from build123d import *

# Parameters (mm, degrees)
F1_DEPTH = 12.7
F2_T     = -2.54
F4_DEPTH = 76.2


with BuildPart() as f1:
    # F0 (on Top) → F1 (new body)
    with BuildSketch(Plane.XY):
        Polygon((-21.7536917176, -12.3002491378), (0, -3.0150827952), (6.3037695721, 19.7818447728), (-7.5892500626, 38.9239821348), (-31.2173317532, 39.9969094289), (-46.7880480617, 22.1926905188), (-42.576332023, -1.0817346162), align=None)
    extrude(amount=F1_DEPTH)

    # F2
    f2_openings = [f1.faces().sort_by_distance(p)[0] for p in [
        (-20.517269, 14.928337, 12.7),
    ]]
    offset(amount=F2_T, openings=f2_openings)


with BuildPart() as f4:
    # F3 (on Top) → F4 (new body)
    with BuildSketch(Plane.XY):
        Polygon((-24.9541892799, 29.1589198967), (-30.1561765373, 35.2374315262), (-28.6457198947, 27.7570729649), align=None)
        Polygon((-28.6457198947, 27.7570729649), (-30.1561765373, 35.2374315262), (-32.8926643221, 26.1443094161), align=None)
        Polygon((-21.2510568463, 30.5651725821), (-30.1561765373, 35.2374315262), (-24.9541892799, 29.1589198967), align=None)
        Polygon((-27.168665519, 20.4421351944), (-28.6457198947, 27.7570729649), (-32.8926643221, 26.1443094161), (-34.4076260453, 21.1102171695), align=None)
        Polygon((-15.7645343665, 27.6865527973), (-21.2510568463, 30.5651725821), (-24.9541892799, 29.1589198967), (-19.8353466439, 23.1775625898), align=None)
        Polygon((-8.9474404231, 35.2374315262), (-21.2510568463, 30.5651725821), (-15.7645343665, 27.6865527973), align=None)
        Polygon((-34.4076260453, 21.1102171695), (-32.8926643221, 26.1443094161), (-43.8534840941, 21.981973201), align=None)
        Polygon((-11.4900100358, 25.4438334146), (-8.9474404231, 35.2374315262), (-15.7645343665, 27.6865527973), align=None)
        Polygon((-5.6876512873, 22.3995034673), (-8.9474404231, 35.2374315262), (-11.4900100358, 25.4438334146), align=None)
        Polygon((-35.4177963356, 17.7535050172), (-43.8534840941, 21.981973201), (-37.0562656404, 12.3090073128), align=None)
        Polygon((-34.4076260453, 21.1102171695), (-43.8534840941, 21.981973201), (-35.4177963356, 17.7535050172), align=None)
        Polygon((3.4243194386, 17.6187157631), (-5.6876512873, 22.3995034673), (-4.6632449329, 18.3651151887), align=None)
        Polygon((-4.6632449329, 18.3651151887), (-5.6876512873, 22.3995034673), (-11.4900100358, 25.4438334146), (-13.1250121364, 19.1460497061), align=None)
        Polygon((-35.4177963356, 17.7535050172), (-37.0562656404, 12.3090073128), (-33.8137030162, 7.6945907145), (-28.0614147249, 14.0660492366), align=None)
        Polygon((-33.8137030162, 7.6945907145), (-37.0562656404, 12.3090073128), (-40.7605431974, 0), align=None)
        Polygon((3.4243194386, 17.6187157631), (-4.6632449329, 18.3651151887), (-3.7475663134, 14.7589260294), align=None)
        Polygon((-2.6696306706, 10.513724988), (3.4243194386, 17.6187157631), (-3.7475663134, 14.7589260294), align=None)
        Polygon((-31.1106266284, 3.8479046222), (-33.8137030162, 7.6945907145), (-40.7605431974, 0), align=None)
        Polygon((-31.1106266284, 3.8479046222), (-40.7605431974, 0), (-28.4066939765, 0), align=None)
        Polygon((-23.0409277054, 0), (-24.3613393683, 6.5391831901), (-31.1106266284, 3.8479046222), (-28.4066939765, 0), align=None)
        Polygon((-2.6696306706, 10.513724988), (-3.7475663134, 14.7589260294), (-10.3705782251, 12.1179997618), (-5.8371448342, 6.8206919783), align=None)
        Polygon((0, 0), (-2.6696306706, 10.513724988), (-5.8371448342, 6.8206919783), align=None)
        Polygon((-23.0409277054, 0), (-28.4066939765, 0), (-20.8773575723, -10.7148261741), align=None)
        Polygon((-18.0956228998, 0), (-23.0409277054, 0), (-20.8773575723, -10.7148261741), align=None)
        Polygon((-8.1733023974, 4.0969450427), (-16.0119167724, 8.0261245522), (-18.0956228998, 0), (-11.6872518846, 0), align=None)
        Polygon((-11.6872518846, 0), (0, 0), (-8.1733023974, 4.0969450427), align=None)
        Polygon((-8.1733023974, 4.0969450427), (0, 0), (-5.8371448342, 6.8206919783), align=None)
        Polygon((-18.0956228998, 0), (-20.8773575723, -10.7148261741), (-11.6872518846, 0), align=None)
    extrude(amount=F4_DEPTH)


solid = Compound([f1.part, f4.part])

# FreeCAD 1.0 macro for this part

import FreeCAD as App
import Part
import Sketcher

V = App.Vector
Q = App.Units.Quantity


def faces_at(feature, points):
    """Names of the faces that lie closest to the given points."""
    faces = feature.Shape.Faces
    near = lambda p: min(range(len(faces)), key=lambda i: faces[i].distToShape(Part.Vertex(*p))[0])
    return sorted({f"Face{near(p) + 1}" for p in points})


def add_polygon(sketch, points):
    """Adds a closed chain of lines whose ends are joined by coincident constraints."""
    first, n = sketch.GeometryCount, len(points)
    for a, b in zip(points, points[1:] + points[:1]):
        sketch.addGeometry(Part.LineSegment(App.Vector(*a, 0), App.Vector(*b, 0)), False)
    for i in range(n):
        sketch.addConstraint(Sketcher.Constraint("Coincident", first + i, 2, first + (i + 1) % n, 1))

doc = App.newDocument("Part")
body = doc.addObject("PartDesign::Body", "Body")

# Sketch on XY plane
sketch1 = body.newObject("Sketcher::SketchObject", "Sketch")
sketch1.AttachmentSupport = (doc.getObject("XY_Plane"), [""])
sketch1.MapMode = "FlatFace"
add_polygon(sketch1, [(-22, -12), (0, -3), (6, 20), (-8, 39), (-31, 40), (-47, 22), (-43, -1)])  # lines 0-6
sketch1.addConstraint(Sketcher.Constraint("PointOnObject", 0, 2, -2))
sketch1.addConstraint(Sketcher.Constraint("Equal", 0, 1))
sketch1.addConstraint(Sketcher.Constraint("Equal", 1, 2))
sketch1.addConstraint(Sketcher.Constraint("Equal", 2, 3))
sketch1.addConstraint(Sketcher.Constraint("Equal", 3, 4))
sketch1.addConstraint(Sketcher.Constraint("Equal", 4, 5))
sketch1.addConstraint(Sketcher.Constraint("Equal", 5, 6))
sketch1.addConstraint(Sketcher.Constraint("DistanceX", 3, 2, 1, 2, Q("37.521101 mm")))
sketch1.addConstraint(Sketcher.Constraint("DistanceX", 5, 2, 3, 2, Q("11.359 mm")))
sketch1.addConstraint(Sketcher.Constraint("Distance", 0, Q("23.652429 mm")))
sketch1.addConstraint(Sketcher.Constraint("DistanceX", -1, 1, 1, 2, Q("6.30377 mm")))
sketch1.addConstraint(Sketcher.Constraint("DistanceX", 2, 2, -1, 1, Q("7.58925 mm")))
sketch1.addConstraint(Sketcher.Constraint("DistanceY", -1, 1, 3, 2, Q("39.996909 mm")))
sketch1.addConstraint(Sketcher.Constraint("DistanceX", 4, 2, -1, 1, Q("46.788048 mm")))
pad1 = body.newObject("PartDesign::Pad", "Pad")
pad1.Profile = sketch1
pad1.Length = Q("0.5 in")
doc.recompute()

thickness = body.newObject("PartDesign::Thickness", "Thickness")
thickness.Base = (pad1, faces_at(pad1, [(-20.242, 13.848, 12.7)]))
thickness.Value = Q("0.1 in")
thickness.Reversed = True
thickness.Join = "Arc"
body2 = doc.addObject("PartDesign::Body", "Body001")

# Sketch on XY plane
sketch2 = body2.newObject("Sketcher::SketchObject", "Sketch001")
sketch2.AttachmentSupport = (doc.getObject("XY_Plane001"), [""])
sketch2.MapMode = "FlatFace"
add_polygon(sketch2, [(-28.406694, 0), (-20.877358, -10.714826), (-11.687252, 0), (0, 0), (-2.669631, 10.513725), (3.424319, 17.618716), (-5.687651, 22.399503), (-8.94744, 35.237432), (-21.251057, 30.565173), (-30.156177, 35.237432), (-32.892664, 26.144309), (-43.853484, 21.981973), (-37.056266, 12.309007), (-40.760543, 0)])  # lines 0-13
add_polygon(sketch2, [(-16.011917, 8.026125), (-18.095623, 0), (-23.040928, 0), (-24.361339, 6.539183), (-31.110627, 3.847905), (-33.813703, 7.694591), (-28.061415, 14.066049), (-35.417796, 17.753505), (-34.407626, 21.110217), (-27.168666, 20.442135), (-28.64572, 27.757073), (-24.954189, 29.15892), (-19.835347, 23.177563), (-15.764534, 27.686553), (-11.49001, 25.443833), (-13.125012, 19.14605), (-4.663245, 18.365115), (-3.747566, 14.758926), (-10.370578, 12.118), (-5.837145, 6.820692), (-8.173302, 4.096945)])  # lines 14-34
sketch2.addConstraint(Sketcher.Constraint("Horizontal", 2))
sketch2.addConstraint(Sketcher.Constraint("Horizontal", 13))
sketch2.addConstraint(Sketcher.Constraint("Horizontal", 15))
sketch2.addConstraint(Sketcher.Constraint("Coincident", 2, 2, -1, 1))
sketch2.addConstraint(Sketcher.Constraint("PointOnObject", 12, 2, -1))
sketch2.addConstraint(Sketcher.Constraint("PointOnObject", 14, 2, -1))
sketch2.addConstraint(Sketcher.Constraint("DistanceX", 34, 2, 31, 2, Q("0.2220999 in")))
sketch2.addConstraint(Sketcher.Constraint("Distance", 4, Q("9.360402 mm")))
sketch2.addConstraint(Sketcher.Constraint("Distance", 8, Q("10.056399 mm")))
sketch2.addConstraint(Sketcher.Constraint("DistanceX", 2, 1, 2, 2, Q("11.687252 mm")))
sketch2.addConstraint(Sketcher.Constraint("DistanceX", 13, 1, 13, 2, Q("12.353849 mm")))
sketch2.addConstraint(Sketcher.Constraint("DistanceY", -1, 1, 31, 2, Q("12.118 mm")))
sketch2.addConstraint(Sketcher.Constraint("DistanceX", 1, 2, 5, 2, Q("5.999601 mm")))
sketch2.addConstraint(Sketcher.Constraint("DistanceY", 10, 2, 7, 2, Q("8.583199 mm")))
sketch2.addConstraint(Sketcher.Constraint("DistanceX", 11, 2, 9, 2, Q("4.163601 mm")))
sketch2.addConstraint(Sketcher.Constraint("DistanceX", 17, 2, 15, 2, Q("8.069699 mm")))
sketch2.addConstraint(Sketcher.Constraint("DistanceX", 9, 2, 22, 2, Q("5.723999 mm")))
sketch2.addConstraint(Sketcher.Constraint("DistanceY", 23, 2, 7, 2, Q("2.8081 mm")))
sketch2.addConstraint(Sketcher.Constraint("DistanceY", 27, 2, 6, 2, Q("9.793598 mm")))
sketch2.addConstraint(Sketcher.Constraint("DistanceY", 4, 2, 29, 2, Q("0.746399 mm")))
sketch2.addConstraint(Sketcher.Constraint("DistanceY", 3, 2, 30, 2, Q("4.245201 mm")))
sketch2.addConstraint(Sketcher.Constraint("Distance", 0, Q("13.09574 mm")))
sketch2.addConstraint(Sketcher.Constraint("Distance", 7, Q("13.160888 mm")))
sketch2.addConstraint(Sketcher.Constraint("Distance", 9, Q("9.495959 mm")))
sketch2.addConstraint(Sketcher.Constraint("Distance", 10, Q("11.72453 mm")))
sketch2.addConstraint(Sketcher.Constraint("Distance", 11, Q("11.822371 mm")))
sketch2.addConstraint(Sketcher.Constraint("Distance", 12, Q("12.854312 mm")))
sketch2.addConstraint(Sketcher.Constraint("Distance", 18, Q("4.701448 mm")))
sketch2.addConstraint(Sketcher.Constraint("Distance", 21, Q("3.505419 mm")))
sketch2.addConstraint(Sketcher.Constraint("Distance", 28, Q("6.506559 mm")))
sketch2.addConstraint(Sketcher.Constraint("Distance", 31, Q("7.130132 mm")))
sketch2.addConstraint(Sketcher.Constraint("DistanceX", 15, 2, 15, 1, Q("4.945305 mm")))
sketch2.addConstraint(Sketcher.Constraint("DistanceX", 3, 2, -1, 1, Q("2.669631 mm")))
sketch2.addConstraint(Sketcher.Constraint("DistanceX", -1, 1, 4, 2, Q("3.424319 mm")))
sketch2.addConstraint(Sketcher.Constraint("DistanceX", 6, 2, -1, 1, Q("8.94744 mm")))
sketch2.addConstraint(Sketcher.Constraint("DistanceY", -1, 1, 6, 2, Q("35.237432 mm")))
sketch2.addConstraint(Sketcher.Constraint("DistanceY", -1, 1, 8, 2, Q("35.237432 mm")))
sketch2.addConstraint(Sketcher.Constraint("DistanceY", -1, 1, 9, 2, Q("26.144309 mm")))
sketch2.addConstraint(Sketcher.Constraint("DistanceX", 16, 2, -1, 1, Q("24.361339 mm")))
sketch2.addConstraint(Sketcher.Constraint("DistanceY", -1, 1, 18, 2, Q("7.694591 mm")))
sketch2.addConstraint(Sketcher.Constraint("DistanceY", -1, 1, 19, 2, Q("14.066049 mm")))
sketch2.addConstraint(Sketcher.Constraint("DistanceX", 23, 2, -1, 1, Q("28.64572 mm")))
sketch2.addConstraint(Sketcher.Constraint("DistanceX", 24, 2, -1, 1, Q("24.954189 mm")))
sketch2.addConstraint(Sketcher.Constraint("DistanceY", -1, 1, 24, 2, Q("29.15892 mm")))
sketch2.addConstraint(Sketcher.Constraint("DistanceX", 27, 2, -1, 1, Q("11.49001 mm")))
sketch2.addConstraint(Sketcher.Constraint("DistanceY", -1, 1, 28, 2, Q("19.14605 mm")))
sketch2.addConstraint(Sketcher.Constraint("DistanceX", 31, 2, -1, 1, Q("10.370578 mm")))
sketch2.addConstraint(Sketcher.Constraint("DistanceY", -1, 1, 32, 2, Q("6.820692 mm")))
sketch2.addConstraint(Sketcher.Constraint("DistanceY", 0, 2, 3, 2, Q("21.228551 mm")))
sketch2.addConstraint(Sketcher.Constraint("DistanceY", 3, 2, 5, 2, Q("11.885778 mm")))
sketch2.addConstraint(Sketcher.Constraint("DistanceY", 5, 2, 6, 2, Q("12.837928 mm")))
sketch2.addConstraint(Sketcher.Constraint("DistanceY", 7, 2, 6, 2, Q("4.672259 mm")))
sketch2.addConstraint(Sketcher.Constraint("DistanceX", 14, 2, 1, 2, Q("6.408371 mm")))
sketch2.addConstraint(Sketcher.Constraint("DistanceY", 17, 2, 16, 2, Q("2.691279 mm")))
sketch2.addConstraint(Sketcher.Constraint("DistanceX", 18, 2, 13, 2, Q("5.407009 mm")))
sketch2.addConstraint(Sketcher.Constraint("DistanceX", 18, 2, 19, 2, Q("5.752288 mm")))
sketch2.addConstraint(Sketcher.Constraint("DistanceX", 11, 2, 20, 2, Q("1.638469 mm")))
sketch2.addConstraint(Sketcher.Constraint("DistanceY", 20, 2, 10, 2, Q("4.228468 mm")))
sketch2.addConstraint(Sketcher.Constraint("DistanceX", 20, 2, 21, 2, Q("1.01017 mm")))
sketch2.addConstraint(Sketcher.Constraint("DistanceY", 22, 2, 21, 2, Q("0.668082 mm")))
sketch2.addConstraint(Sketcher.Constraint("DistanceX", 7, 2, 25, 2, Q("1.41571 mm")))
sketch2.addConstraint(Sketcher.Constraint("DistanceY", 25, 2, 7, 2, Q("7.38761 mm")))
sketch2.addConstraint(Sketcher.Constraint("DistanceY", 25, 2, 26, 2, Q("4.50899 mm")))
sketch2.addConstraint(Sketcher.Constraint("DistanceX", 29, 2, 30, 2, Q("0.915679 mm")))
sketch2.addConstraint(Sketcher.Constraint("DistanceX", 32, 2, 30, 2, Q("2.089579 mm")))
sketch2.addConstraint(Sketcher.Constraint("DistanceX", 1, 2, 33, 2, Q("3.513949 mm")))
sketch2.addConstraint(Sketcher.Constraint("DistanceY", 33, 2, 3, 2, Q("6.41678 mm")))
sketch2.addConstraint(Sketcher.Constraint("DistanceY", 16, 2, 34, 2, Q("1.486941 mm")))
sketch2.addConstraint(Sketcher.Constraint("Distance", 26, Q("6.074743 mm")))
pad2 = body2.newObject("PartDesign::Pad", "Pad001")
pad2.Profile = sketch2
pad2.Length = Q("3 in")

doc.recompute()
